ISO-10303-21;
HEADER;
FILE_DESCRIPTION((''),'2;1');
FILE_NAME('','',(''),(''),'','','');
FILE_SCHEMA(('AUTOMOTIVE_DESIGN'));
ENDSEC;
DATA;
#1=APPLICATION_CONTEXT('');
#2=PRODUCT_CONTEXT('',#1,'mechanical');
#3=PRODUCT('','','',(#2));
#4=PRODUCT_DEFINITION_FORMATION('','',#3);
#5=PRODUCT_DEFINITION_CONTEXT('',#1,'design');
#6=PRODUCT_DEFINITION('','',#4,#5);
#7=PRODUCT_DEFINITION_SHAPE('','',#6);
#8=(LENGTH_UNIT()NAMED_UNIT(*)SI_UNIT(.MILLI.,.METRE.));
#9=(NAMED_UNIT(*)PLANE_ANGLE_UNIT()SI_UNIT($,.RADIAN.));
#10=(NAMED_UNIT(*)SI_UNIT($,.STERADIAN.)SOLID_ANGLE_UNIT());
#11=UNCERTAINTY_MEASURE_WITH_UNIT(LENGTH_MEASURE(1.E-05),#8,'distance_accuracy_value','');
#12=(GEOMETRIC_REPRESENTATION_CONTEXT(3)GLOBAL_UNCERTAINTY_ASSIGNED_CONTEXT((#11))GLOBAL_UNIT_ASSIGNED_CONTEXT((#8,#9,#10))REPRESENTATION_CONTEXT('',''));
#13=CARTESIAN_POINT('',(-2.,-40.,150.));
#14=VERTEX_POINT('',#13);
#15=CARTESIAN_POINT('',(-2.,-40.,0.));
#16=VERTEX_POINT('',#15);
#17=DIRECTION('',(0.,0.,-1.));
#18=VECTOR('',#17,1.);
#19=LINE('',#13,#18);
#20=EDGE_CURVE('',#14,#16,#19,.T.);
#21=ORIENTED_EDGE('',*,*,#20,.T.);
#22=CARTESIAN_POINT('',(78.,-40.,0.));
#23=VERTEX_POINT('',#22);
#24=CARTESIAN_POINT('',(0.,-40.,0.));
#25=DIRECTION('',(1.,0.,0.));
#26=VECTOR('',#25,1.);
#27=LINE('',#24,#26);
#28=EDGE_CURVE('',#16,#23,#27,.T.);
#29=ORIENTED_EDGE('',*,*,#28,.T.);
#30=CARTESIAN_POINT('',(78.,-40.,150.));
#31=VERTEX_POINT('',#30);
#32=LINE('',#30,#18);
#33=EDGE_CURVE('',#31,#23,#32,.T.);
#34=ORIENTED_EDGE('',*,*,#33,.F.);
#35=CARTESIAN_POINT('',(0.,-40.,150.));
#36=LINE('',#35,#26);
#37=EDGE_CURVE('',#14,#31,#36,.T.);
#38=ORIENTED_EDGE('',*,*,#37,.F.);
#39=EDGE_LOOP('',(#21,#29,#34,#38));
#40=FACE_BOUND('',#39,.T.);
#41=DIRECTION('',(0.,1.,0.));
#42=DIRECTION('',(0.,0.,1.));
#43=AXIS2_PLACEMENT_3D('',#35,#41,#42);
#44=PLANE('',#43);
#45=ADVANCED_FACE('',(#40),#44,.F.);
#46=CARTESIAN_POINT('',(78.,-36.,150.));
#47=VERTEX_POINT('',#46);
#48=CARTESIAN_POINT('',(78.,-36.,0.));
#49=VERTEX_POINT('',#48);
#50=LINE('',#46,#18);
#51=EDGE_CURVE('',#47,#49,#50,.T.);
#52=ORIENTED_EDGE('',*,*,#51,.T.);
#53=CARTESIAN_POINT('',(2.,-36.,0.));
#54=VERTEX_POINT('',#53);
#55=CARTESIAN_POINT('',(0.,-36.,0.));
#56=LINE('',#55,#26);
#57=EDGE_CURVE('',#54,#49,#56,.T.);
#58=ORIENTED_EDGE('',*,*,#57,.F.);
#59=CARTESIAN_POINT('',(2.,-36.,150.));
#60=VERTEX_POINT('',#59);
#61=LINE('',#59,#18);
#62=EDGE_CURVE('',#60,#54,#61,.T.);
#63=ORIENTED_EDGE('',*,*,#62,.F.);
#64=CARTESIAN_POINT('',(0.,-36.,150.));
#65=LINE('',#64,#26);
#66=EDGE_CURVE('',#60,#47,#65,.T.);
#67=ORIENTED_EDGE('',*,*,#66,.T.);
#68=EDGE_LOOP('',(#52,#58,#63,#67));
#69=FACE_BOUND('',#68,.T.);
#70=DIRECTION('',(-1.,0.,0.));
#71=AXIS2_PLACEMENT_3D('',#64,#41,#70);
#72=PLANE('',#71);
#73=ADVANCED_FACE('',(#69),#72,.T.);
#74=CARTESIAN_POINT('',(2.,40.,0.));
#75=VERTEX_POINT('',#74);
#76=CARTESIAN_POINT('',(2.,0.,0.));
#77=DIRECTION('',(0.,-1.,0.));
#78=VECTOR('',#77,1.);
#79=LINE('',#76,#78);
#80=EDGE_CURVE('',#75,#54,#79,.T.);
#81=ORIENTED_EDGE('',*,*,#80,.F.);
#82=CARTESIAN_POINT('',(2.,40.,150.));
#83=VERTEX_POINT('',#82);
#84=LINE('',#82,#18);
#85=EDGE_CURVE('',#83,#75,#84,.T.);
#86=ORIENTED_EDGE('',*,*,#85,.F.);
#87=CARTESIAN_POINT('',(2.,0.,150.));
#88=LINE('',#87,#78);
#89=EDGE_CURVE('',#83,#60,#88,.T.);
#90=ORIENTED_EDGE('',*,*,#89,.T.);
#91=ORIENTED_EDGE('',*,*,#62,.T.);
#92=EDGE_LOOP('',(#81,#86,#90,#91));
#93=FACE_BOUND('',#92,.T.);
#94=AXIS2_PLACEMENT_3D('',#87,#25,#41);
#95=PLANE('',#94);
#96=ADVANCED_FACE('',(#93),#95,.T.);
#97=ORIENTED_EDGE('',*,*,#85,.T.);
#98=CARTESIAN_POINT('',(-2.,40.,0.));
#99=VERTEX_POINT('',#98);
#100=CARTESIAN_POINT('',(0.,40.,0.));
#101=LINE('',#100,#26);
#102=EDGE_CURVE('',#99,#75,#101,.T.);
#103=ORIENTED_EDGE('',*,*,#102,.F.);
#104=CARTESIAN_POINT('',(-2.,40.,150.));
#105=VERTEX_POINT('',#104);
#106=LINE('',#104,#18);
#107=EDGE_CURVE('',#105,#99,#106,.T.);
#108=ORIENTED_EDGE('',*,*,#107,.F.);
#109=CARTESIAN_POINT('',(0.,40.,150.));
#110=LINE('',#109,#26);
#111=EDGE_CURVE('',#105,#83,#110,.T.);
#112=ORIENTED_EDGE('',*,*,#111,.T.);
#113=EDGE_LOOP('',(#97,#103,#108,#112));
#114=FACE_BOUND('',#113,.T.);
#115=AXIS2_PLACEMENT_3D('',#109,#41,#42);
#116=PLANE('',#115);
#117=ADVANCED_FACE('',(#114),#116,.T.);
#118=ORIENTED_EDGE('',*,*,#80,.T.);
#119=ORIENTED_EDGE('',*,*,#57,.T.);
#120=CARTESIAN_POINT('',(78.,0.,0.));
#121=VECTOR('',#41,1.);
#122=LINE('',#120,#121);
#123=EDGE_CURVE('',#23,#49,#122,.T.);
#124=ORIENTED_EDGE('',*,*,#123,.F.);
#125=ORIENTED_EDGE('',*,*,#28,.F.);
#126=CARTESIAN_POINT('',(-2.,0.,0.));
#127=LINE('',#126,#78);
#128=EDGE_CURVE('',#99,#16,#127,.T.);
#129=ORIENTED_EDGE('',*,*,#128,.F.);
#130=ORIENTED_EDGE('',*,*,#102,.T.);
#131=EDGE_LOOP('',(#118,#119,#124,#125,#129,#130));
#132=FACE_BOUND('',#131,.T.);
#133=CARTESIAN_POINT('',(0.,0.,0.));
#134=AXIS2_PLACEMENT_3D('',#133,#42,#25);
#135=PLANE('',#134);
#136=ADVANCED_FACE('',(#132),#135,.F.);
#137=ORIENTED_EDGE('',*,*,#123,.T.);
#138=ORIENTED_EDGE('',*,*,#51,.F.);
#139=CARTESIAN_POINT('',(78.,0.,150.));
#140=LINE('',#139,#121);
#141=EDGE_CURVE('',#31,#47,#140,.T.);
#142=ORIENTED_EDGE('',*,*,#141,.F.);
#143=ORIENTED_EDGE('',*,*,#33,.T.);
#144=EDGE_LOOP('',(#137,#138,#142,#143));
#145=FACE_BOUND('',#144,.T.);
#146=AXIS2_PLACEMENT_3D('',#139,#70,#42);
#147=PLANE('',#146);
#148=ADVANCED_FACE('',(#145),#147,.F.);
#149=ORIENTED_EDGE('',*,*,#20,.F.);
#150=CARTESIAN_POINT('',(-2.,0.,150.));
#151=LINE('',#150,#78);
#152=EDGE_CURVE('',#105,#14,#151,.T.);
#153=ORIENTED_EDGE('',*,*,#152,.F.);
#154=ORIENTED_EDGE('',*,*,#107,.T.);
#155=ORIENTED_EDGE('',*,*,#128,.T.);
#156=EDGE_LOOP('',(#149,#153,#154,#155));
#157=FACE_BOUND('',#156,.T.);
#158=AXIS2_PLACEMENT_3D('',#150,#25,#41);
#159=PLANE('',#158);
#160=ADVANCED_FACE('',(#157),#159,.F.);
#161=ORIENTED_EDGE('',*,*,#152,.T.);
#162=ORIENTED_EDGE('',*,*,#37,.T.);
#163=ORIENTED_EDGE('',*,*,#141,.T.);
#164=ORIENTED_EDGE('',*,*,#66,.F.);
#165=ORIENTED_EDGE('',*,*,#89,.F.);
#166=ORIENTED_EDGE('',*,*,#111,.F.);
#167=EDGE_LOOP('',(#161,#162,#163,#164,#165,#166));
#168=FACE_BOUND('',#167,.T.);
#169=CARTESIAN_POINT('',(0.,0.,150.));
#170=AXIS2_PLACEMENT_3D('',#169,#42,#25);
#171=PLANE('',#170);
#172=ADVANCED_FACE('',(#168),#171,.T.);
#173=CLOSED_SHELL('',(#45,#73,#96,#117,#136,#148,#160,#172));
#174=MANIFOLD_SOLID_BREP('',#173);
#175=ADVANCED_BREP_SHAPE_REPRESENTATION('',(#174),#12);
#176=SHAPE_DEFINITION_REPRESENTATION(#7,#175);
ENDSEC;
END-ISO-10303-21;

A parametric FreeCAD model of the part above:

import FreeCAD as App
import Part
import Sketcher
from FreeCAD import Vector
Q = App.Units.Quantity


def add_polygon(sketch, points):
    """Adds a closed chain of lines whose ends are joined by coincident constraints."""
    first, n = sketch.GeometryCount, len(points)
    for a, b in zip(points, points[1:] + points[:1]):
        sketch.addGeometry(Part.LineSegment(App.Vector(*a, 0), App.Vector(*b, 0)), False)
    for i in range(n):
        sketch.addConstraint(Sketcher.Constraint("Coincident", first + i, 2, first + (i + 1) % n, 1))

doc = App.newDocument("Part")
params = doc.addObject("Spreadsheet::Sheet", "Params")
for row, (alias, value) in enumerate([
    ("sketch1_width", "80 mm"),
    ("sketch1_width2", "76 mm"),
    ("pad1_length", "150 mm"),
], start=1):
    params.set(f"A{row}", alias)
    params.set(f"B{row}", "=" + value)
    params.setAlias(f"B{row}", alias)

body = doc.addObject("PartDesign::Body", "Body")

# Sketch on XY plane
sketch1 = body.newObject("Sketcher::SketchObject", "Sketch")
sketch1.AttachmentSupport = (doc.getObject("XY_Plane"), [""])
sketch1.MapMode = "FlatFace"
add_polygon(sketch1, [(-2, 40), (-2, -40), (78, -40), (78, -36), (2, -36), (2, 40)])  # lines 0-5
sketch1.addConstraint([
    Sketcher.Constraint("Vertical", 0),
    Sketcher.Constraint("Horizontal", 1),
    Sketcher.Constraint("Vertical", 2),
    Sketcher.Constraint("Horizontal", 3),
    Sketcher.Constraint("Vertical", 4),
    Sketcher.Constraint("Horizontal", 5),
    Sketcher.Constraint("Symmetric", 0, 2, 4, 2, -1, 1),
    Sketcher.Constraint("Equal", 1, 0),
    Sketcher.Constraint("Equal", 5, 2),
    Sketcher.Constraint("DistanceX", 1, 1, 1, 2, Q("80 mm")),
    Sketcher.Constraint("DistanceX", 3, 2, 3, 1, Q("76 mm")),
])
sketch1.setExpression("Constraints[15]", "Params.sketch1_width")
sketch1.setExpression("Constraints[16]", "Params.sketch1_width2")
pad1 = body.newObject("PartDesign::Pad", "Pad")
pad1.Profile = sketch1
pad1.setExpression("Length", "Params.pad1_length")

doc.recompute()
